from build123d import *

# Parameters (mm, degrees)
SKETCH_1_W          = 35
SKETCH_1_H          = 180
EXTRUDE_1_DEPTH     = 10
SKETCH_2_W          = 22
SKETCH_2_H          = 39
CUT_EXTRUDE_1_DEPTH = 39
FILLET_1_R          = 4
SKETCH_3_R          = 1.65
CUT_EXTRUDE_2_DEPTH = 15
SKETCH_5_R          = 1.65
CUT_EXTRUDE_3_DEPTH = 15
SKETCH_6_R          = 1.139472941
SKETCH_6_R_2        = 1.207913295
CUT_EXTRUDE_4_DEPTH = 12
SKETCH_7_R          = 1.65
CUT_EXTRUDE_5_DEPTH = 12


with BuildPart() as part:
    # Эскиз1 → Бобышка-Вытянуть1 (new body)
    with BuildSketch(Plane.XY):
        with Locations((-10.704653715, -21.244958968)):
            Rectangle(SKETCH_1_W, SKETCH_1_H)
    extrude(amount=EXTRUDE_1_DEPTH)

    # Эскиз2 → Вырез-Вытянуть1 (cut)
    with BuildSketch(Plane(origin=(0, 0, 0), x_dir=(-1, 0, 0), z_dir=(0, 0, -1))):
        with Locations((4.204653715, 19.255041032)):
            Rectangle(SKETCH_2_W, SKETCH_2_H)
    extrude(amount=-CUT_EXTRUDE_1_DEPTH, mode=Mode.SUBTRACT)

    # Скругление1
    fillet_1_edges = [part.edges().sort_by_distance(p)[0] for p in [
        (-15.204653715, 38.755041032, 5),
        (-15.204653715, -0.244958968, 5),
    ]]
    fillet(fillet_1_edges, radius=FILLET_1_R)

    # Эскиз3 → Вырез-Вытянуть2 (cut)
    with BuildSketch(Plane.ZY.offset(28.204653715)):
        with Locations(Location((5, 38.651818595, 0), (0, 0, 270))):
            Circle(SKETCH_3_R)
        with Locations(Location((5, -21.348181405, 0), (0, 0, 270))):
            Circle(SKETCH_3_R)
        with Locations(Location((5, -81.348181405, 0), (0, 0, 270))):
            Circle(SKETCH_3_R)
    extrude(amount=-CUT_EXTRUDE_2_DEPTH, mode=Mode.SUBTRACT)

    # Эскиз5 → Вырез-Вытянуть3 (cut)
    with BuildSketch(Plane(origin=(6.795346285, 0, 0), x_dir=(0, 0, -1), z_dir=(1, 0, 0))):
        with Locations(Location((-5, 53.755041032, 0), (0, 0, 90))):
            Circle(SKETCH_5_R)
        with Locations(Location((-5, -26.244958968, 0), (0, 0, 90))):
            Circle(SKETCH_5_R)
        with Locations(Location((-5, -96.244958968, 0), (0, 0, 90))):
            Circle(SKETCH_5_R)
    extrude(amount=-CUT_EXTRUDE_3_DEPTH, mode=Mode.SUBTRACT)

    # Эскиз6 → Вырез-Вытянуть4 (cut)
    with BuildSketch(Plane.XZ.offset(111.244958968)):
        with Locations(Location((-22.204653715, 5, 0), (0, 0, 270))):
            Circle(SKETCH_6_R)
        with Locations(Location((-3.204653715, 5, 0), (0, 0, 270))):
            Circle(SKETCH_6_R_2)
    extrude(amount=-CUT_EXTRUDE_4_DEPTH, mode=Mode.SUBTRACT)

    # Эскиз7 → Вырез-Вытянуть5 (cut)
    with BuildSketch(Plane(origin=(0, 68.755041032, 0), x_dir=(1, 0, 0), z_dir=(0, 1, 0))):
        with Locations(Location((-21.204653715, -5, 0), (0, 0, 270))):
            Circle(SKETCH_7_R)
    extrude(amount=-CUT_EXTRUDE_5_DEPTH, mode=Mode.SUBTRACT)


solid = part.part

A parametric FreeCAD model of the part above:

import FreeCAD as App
import Part
import Sketcher
Q = App.Units.Quantity


def edges_at(feature, points):
    """Names of the edges that pass closest to the given points."""
    edges = feature.Shape.Edges
    near = lambda p: min(range(len(edges)), key=lambda i: edges[i].distToShape(Part.Vertex(*p))[0])
    return sorted({f"Edge{near(p) + 1}" for p in points})

doc = App.newDocument("Part")
body = doc.addObject("PartDesign::Body", "Body")

sketch1 = doc.addObject("Sketcher::SketchObject", "Sketch")
body.addObject(sketch1)
sketch1.AttachmentSupport = (doc.XY_Plane, [""])
sketch1.MapMode = "FlatFace"
sketch1.addGeometry(Part.LineSegment(App.Vector(-28, 69, 0), App.Vector(-28, -111, 0)), False)
sketch1.addGeometry(Part.LineSegment(App.Vector(-28, -111, 0), App.Vector(7, -111, 0)), False)
sketch1.addGeometry(Part.LineSegment(App.Vector(7, -111, 0), App.Vector(7, 69, 0)), False)
sketch1.addGeometry(Part.LineSegment(App.Vector(7, 69, 0), App.Vector(-28, 69, 0)), False)
sketch1.addConstraint(Sketcher.Constraint("Coincident", 0, 2, 1, 1))
sketch1.addConstraint(Sketcher.Constraint("Coincident", 1, 2, 2, 1))
sketch1.addConstraint(Sketcher.Constraint("Coincident", 2, 2, 3, 1))
sketch1.addConstraint(Sketcher.Constraint("Coincident", 3, 2, 0, 1))
sketch1.addConstraint(Sketcher.Constraint("Vertical", 0))
sketch1.addConstraint(Sketcher.Constraint("Horizontal", 1))
sketch1.addConstraint(Sketcher.Constraint("Vertical", 2))
sketch1.addConstraint(Sketcher.Constraint("Horizontal", 3))
sketch1.addConstraint(Sketcher.Constraint("DistanceX", 1, 1, 1, 2, Q("35 mm")))
sketch1.addConstraint(Sketcher.Constraint("DistanceY", 0, 2, 0, 1, Q("180 mm")))
sketch1.addConstraint(Sketcher.Constraint("DistanceY", 0, 2, -1, 1, Q("111.244959 mm")))
sketch1.addConstraint(Sketcher.Constraint("DistanceX", 0, 2, -1, 1, Q("28.204654 mm")))
pad1 = doc.addObject("PartDesign::Pad", "Pad")
body.addObject(pad1)
pad1.Profile = sketch1
pad1.Length = 10

sketch2 = doc.addObject("Sketcher::SketchObject", "Sketch001")
body.addObject(sketch2)
sketch2.AttachmentSupport = (doc.XY_Plane, [""])
sketch2.MapMode = "FlatFace"
sketch2.addGeometry(Part.LineSegment(App.Vector(7, 39, 0), App.Vector(7, 0, 0)), False)
sketch2.addGeometry(Part.LineSegment(App.Vector(7, 0, 0), App.Vector(-15, 0, 0)), False)
sketch2.addGeometry(Part.LineSegment(App.Vector(-15, 0, 0), App.Vector(-15, 39, 0)), False)
sketch2.addGeometry(Part.LineSegment(App.Vector(-15, 39, 0), App.Vector(7, 39, 0)), False)
sketch2.addConstraint(Sketcher.Constraint("Coincident", 0, 2, 1, 1))
sketch2.addConstraint(Sketcher.Constraint("Coincident", 1, 2, 2, 1))
sketch2.addConstraint(Sketcher.Constraint("Coincident", 2, 2, 3, 1))
sketch2.addConstraint(Sketcher.Constraint("Coincident", 3, 2, 0, 1))
sketch2.addConstraint(Sketcher.Constraint("Vertical", 0))
sketch2.addConstraint(Sketcher.Constraint("Horizontal", 1))
sketch2.addConstraint(Sketcher.Constraint("Vertical", 2))
sketch2.addConstraint(Sketcher.Constraint("Horizontal", 3))
sketch2.addConstraint(Sketcher.Constraint("DistanceX", 1, 2, 1, 1, Q("22 mm")))
sketch2.addConstraint(Sketcher.Constraint("DistanceY", 0, 2, 0, 1, Q("39 mm")))
sketch2.addConstraint(Sketcher.Constraint("DistanceY", 0, 2, -1, 1, Q("0.244959 mm")))
sketch2.addConstraint(Sketcher.Constraint("DistanceX", -1, 1, 0, 2, Q("6.795346 mm")))
pocket1 = doc.addObject("PartDesign::Pocket", "Pocket")
body.addObject(pocket1)
pocket1.Profile = sketch2
pocket1.Length = 39
pocket1.Reversed = True
doc.recompute()

fillet = doc.addObject("PartDesign::Fillet", "Fillet")
body.addObject(fillet)
fillet.Base = (pocket1, edges_at(pocket1, [(-15.205, 38.755, 5), (-15.205, -0.245, 5)]))
fillet.Radius = 4

sketch3 = doc.addObject("Sketcher::SketchObject", "Sketch002")
body.addObject(sketch3)
sketch3.AttachmentSupport = (doc.YZ_Plane, [""])
sketch3.MapMode = "FlatFace"
sketch3.AttachmentOffset = App.Placement(App.Vector(0, 0, -28.204654), App.Rotation())
sketch3.addGeometry(Part.Circle(App.Vector(38.7, 5, 0), App.Vector(0, 0, 1), 1.6), False)
sketch3.addGeometry(Part.Circle(App.Vector(-21.3, 5, 0), App.Vector(0, 0, 1), 1.6), False)
sketch3.addGeometry(Part.Circle(App.Vector(-81.3, 5, 0), App.Vector(0, 0, 1), 1.6), False)
sketch3.addConstraint(Sketcher.Constraint("Equal", 0, 1))
sketch3.addConstraint(Sketcher.Constraint("Equal", 1, 2))
sketch3.addConstraint(Sketcher.Constraint("Horizontal", 0, 3, 1, 3))
sketch3.addConstraint(Sketcher.Constraint("Horizontal", 1, 3, 2, 3))
sketch3.addConstraint(Sketcher.Constraint("Diameter", 0, Q("3.3 mm")))
sketch3.addConstraint(Sketcher.Constraint("DistanceY", -1, 1, 0, 3, Q("5 mm")))
sketch3.addConstraint(Sketcher.Constraint("DistanceX", 1, 3, 0, 3, Q("60 mm")))
sketch3.addConstraint(Sketcher.Constraint("DistanceX", 2, 3, 1, 3, Q("60 mm")))
sketch3.addConstraint(Sketcher.Constraint("DistanceX", -1, 1, 0, 3, Q("38.651819 mm")))
pocket2 = doc.addObject("PartDesign::Pocket", "Pocket001")
body.addObject(pocket2)
pocket2.Profile = sketch3
pocket2.Length = 15
pocket2.Reversed = True

sketch4 = doc.addObject("Sketcher::SketchObject", "Sketch003")
body.addObject(sketch4)
sketch4.AttachmentSupport = (doc.YZ_Plane, [""])
sketch4.MapMode = "FlatFace"
sketch4.AttachmentOffset = App.Placement(App.Vector(0, 0, 6.795346), App.Rotation())
sketch4.addGeometry(Part.Circle(App.Vector(53.8, 5, 0), App.Vector(0, 0, 1), 1.6), False)
sketch4.addGeometry(Part.Circle(App.Vector(-26.2, 5, 0), App.Vector(0, 0, 1), 1.6), False)
sketch4.addGeometry(Part.Circle(App.Vector(-96.2, 5, 0), App.Vector(0, 0, 1), 1.6), False)
sketch4.addConstraint(Sketcher.Constraint("Equal", 0, 1))
sketch4.addConstraint(Sketcher.Constraint("Equal", 1, 2))
sketch4.addConstraint(Sketcher.Constraint("Horizontal", 0, 3, 1, 3))
sketch4.addConstraint(Sketcher.Constraint("Horizontal", 1, 3, 2, 3))
sketch4.addConstraint(Sketcher.Constraint("Diameter", 0, Q("3.3 mm")))
sketch4.addConstraint(Sketcher.Constraint("DistanceY", -1, 1, 0, 3, Q("5 mm")))
sketch4.addConstraint(Sketcher.Constraint("DistanceX", 1, 3, 0, 3, Q("80 mm")))
sketch4.addConstraint(Sketcher.Constraint("DistanceX", 2, 3, 1, 3, Q("70 mm")))
sketch4.addConstraint(Sketcher.Constraint("DistanceX", -1, 1, 0, 3, Q("53.755041 mm")))
pocket3 = doc.addObject("PartDesign::Pocket", "Pocket002")
body.addObject(pocket3)
pocket3.Profile = sketch4
pocket3.Length = 15

sketch5 = doc.addObject("Sketcher::SketchObject", "Sketch004")
body.addObject(sketch5)
sketch5.AttachmentSupport = (doc.XZ_Plane, [""])
sketch5.MapMode = "FlatFace"
sketch5.AttachmentOffset = App.Placement(App.Vector(0, 0, 111.244959), App.Rotation())
sketch5.addGeometry(Part.Circle(App.Vector(-22.2, 5, 0), App.Vector(0, 0, 1), 1.1), False)
sketch5.addGeometry(Part.Circle(App.Vector(-3.2, 5, 0), App.Vector(0, 0, 1), 1.2), False)
sketch5.addConstraint(Sketcher.Constraint("Horizontal", 0, 3, 1, 3))
sketch5.addConstraint(Sketcher.Constraint("DistanceY", -1, 1, 0, 3, Q("5 mm")))
sketch5.addConstraint(Sketcher.Constraint("DistanceX", 0, 3, 1, 3, Q("19 mm")))
sketch5.addConstraint(Sketcher.Constraint("Diameter", 0, Q("2.278946 mm")))
sketch5.addConstraint(Sketcher.Constraint("Diameter", 1, Q("2.415827 mm")))
sketch5.addConstraint(Sketcher.Constraint("DistanceX", 0, 3, -1, 1, Q("22.204654 mm")))
pocket4 = doc.addObject("PartDesign::Pocket", "Pocket003")
body.addObject(pocket4)
pocket4.Profile = sketch5
pocket4.Length = 12

sketch6 = doc.addObject("Sketcher::SketchObject", "Sketch005")
body.addObject(sketch6)
sketch6.AttachmentSupport = (doc.XZ_Plane, [""])
sketch6.MapMode = "FlatFace"
sketch6.AttachmentOffset = App.Placement(App.Vector(0, 0, -68.755041), App.Rotation())
sketch6.addGeometry(Part.Circle(App.Vector(-21.2, 5, 0), App.Vector(0, 0, 1), 1.6), False)
sketch6.addConstraint(Sketcher.Constraint("Diameter", 0, Q("3.3 mm")))
sketch6.addConstraint(Sketcher.Constraint("DistanceY", -1, 1, 0, 3, Q("5 mm")))
sketch6.addConstraint(Sketcher.Constraint("DistanceX", 0, 3, -1, 1, Q("21.204654 mm")))
pocket5 = doc.addObject("PartDesign::Pocket", "Pocket004")
body.addObject(pocket5)
pocket5.Profile = sketch6
pocket5.Length = 12
pocket5.Reversed = True

doc.recompute()
